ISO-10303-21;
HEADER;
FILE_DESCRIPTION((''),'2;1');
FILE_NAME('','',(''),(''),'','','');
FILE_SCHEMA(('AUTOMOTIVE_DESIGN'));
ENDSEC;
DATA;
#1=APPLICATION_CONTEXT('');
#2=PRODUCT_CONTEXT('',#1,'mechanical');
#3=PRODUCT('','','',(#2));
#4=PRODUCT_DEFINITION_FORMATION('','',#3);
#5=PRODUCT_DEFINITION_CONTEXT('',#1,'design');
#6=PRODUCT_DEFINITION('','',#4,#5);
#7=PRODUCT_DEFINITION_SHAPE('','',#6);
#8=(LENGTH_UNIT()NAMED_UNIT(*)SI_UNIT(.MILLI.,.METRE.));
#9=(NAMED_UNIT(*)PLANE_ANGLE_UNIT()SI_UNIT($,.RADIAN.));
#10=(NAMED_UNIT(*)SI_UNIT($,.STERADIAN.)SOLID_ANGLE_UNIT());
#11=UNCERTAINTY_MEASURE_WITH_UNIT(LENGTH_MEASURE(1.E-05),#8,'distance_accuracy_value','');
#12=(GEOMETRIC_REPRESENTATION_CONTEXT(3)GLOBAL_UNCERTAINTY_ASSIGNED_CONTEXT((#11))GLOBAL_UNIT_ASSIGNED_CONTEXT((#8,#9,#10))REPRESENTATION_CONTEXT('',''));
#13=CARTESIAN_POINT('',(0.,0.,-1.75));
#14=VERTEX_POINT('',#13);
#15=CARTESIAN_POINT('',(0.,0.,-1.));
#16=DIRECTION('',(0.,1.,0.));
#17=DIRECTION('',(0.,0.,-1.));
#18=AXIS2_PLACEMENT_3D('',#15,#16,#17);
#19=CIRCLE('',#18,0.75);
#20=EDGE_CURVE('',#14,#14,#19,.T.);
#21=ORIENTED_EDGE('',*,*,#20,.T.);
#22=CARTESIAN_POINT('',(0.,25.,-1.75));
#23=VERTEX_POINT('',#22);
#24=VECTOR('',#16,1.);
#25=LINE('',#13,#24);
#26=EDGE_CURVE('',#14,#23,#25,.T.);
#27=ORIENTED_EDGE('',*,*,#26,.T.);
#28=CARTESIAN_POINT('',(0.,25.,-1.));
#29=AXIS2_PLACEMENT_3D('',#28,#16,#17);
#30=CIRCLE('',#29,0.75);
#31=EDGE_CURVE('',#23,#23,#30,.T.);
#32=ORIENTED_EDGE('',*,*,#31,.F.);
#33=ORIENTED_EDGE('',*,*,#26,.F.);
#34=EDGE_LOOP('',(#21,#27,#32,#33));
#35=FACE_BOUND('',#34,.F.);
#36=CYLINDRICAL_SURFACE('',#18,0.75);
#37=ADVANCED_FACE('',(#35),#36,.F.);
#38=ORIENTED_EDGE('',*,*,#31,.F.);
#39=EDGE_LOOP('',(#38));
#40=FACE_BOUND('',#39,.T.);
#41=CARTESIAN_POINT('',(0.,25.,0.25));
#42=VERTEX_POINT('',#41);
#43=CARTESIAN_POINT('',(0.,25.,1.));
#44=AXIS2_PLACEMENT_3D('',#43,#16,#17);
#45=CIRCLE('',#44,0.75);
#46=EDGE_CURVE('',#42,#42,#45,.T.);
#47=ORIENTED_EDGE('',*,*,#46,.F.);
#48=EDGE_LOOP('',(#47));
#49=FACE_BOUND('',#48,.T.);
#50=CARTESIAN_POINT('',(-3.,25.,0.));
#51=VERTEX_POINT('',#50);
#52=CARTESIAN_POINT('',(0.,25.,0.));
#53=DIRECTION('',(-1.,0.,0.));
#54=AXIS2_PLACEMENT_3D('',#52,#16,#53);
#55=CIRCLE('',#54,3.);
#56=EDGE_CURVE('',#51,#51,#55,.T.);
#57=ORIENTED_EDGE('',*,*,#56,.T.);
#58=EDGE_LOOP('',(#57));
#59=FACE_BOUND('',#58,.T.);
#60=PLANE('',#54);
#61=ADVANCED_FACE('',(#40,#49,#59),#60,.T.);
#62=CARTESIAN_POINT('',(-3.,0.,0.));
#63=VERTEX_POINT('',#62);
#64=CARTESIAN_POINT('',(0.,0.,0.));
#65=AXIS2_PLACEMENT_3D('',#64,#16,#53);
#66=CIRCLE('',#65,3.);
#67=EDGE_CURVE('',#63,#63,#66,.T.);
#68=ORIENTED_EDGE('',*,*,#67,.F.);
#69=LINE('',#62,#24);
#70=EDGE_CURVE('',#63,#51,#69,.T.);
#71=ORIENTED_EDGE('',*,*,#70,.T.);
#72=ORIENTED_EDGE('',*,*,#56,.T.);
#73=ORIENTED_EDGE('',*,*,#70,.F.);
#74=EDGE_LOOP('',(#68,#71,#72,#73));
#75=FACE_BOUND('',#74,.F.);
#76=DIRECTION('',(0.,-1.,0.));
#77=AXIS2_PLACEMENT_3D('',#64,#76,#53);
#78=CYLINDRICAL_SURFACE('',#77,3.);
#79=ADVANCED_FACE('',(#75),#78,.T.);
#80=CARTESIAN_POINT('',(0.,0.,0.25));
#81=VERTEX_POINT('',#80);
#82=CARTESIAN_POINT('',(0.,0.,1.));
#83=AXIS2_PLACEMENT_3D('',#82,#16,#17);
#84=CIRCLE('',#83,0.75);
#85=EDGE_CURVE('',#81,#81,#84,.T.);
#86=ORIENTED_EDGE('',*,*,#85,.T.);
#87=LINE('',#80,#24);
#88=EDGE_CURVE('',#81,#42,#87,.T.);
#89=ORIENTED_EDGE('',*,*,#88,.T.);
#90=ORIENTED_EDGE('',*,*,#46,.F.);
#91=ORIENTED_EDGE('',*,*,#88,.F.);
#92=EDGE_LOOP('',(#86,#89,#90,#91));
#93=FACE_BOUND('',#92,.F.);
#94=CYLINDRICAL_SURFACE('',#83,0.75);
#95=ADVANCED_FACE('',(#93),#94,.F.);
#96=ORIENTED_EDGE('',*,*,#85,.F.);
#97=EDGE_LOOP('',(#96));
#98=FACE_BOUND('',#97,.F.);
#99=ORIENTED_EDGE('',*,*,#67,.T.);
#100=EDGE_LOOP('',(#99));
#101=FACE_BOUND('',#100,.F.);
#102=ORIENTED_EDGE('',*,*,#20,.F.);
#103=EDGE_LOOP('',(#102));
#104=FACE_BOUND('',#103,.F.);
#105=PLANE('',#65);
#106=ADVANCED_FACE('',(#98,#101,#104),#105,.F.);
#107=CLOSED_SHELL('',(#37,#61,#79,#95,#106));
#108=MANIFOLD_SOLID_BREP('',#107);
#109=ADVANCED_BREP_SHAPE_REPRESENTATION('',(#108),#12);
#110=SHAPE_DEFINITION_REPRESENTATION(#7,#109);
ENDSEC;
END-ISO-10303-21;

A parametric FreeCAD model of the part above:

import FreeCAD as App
import Part
import Sketcher

V = App.Vector

doc = App.newDocument("Part")
body = doc.addObject("PartDesign::Body", "Body")

# Sketch on XZ plane
sketch1 = body.newObject("Sketcher::SketchObject", "Sketch")
sketch1.AttachmentSupport = (doc.getObject("XZ_Plane"), [""])
sketch1.MapMode = "FlatFace"
sketch1.addGeometry(Part.Circle(V(0, 0, 0), V(0, 0, 1), 3), False)
sketch1.addConstraint(Sketcher.Constraint("Coincident", 0, 3, -1, 1))
sketch1.addConstraint(Sketcher.Constraint("Diameter", 0, 6.0))
pad1 = body.newObject("PartDesign::Pad", "Pad")
pad1.Profile = sketch1
pad1.Length = 25
pad1.Reversed = True

# Sketch on XZ plane
sketch2 = body.newObject("Sketcher::SketchObject", "Sketch001")
sketch2.AttachmentSupport = (doc.getObject("XZ_Plane"), [""])
sketch2.MapMode = "FlatFace"
sketch2.addGeometry(Part.Circle(V(0, 1, 0), V(0, 0, 1), 0.8), False)
sketch2.addGeometry(Part.Circle(V(0, -1, 0), V(0, 0, 1), 0.8), False)
sketch2.addConstraint(Sketcher.Constraint("Equal", 0, 1))
sketch2.addConstraint(Sketcher.Constraint("Symmetric", 0, 3, 1, 3, -1, 1))
sketch2.addConstraint(Sketcher.Constraint("PointOnObject", 0, 3, -2))
sketch2.addConstraint(Sketcher.Constraint("Diameter", 0, 1.5))
sketch2.addConstraint(Sketcher.Constraint("DistanceY", -1, 1, 0, 3, 1.0))
doc.recompute()
hole = body.newObject("PartDesign::Hole", "Hole")
hole.Profile = sketch2
hole.ThreadType = "None"
hole.Diameter = 1.5
hole.DepthType = "ThroughAll"

doc.recompute()
